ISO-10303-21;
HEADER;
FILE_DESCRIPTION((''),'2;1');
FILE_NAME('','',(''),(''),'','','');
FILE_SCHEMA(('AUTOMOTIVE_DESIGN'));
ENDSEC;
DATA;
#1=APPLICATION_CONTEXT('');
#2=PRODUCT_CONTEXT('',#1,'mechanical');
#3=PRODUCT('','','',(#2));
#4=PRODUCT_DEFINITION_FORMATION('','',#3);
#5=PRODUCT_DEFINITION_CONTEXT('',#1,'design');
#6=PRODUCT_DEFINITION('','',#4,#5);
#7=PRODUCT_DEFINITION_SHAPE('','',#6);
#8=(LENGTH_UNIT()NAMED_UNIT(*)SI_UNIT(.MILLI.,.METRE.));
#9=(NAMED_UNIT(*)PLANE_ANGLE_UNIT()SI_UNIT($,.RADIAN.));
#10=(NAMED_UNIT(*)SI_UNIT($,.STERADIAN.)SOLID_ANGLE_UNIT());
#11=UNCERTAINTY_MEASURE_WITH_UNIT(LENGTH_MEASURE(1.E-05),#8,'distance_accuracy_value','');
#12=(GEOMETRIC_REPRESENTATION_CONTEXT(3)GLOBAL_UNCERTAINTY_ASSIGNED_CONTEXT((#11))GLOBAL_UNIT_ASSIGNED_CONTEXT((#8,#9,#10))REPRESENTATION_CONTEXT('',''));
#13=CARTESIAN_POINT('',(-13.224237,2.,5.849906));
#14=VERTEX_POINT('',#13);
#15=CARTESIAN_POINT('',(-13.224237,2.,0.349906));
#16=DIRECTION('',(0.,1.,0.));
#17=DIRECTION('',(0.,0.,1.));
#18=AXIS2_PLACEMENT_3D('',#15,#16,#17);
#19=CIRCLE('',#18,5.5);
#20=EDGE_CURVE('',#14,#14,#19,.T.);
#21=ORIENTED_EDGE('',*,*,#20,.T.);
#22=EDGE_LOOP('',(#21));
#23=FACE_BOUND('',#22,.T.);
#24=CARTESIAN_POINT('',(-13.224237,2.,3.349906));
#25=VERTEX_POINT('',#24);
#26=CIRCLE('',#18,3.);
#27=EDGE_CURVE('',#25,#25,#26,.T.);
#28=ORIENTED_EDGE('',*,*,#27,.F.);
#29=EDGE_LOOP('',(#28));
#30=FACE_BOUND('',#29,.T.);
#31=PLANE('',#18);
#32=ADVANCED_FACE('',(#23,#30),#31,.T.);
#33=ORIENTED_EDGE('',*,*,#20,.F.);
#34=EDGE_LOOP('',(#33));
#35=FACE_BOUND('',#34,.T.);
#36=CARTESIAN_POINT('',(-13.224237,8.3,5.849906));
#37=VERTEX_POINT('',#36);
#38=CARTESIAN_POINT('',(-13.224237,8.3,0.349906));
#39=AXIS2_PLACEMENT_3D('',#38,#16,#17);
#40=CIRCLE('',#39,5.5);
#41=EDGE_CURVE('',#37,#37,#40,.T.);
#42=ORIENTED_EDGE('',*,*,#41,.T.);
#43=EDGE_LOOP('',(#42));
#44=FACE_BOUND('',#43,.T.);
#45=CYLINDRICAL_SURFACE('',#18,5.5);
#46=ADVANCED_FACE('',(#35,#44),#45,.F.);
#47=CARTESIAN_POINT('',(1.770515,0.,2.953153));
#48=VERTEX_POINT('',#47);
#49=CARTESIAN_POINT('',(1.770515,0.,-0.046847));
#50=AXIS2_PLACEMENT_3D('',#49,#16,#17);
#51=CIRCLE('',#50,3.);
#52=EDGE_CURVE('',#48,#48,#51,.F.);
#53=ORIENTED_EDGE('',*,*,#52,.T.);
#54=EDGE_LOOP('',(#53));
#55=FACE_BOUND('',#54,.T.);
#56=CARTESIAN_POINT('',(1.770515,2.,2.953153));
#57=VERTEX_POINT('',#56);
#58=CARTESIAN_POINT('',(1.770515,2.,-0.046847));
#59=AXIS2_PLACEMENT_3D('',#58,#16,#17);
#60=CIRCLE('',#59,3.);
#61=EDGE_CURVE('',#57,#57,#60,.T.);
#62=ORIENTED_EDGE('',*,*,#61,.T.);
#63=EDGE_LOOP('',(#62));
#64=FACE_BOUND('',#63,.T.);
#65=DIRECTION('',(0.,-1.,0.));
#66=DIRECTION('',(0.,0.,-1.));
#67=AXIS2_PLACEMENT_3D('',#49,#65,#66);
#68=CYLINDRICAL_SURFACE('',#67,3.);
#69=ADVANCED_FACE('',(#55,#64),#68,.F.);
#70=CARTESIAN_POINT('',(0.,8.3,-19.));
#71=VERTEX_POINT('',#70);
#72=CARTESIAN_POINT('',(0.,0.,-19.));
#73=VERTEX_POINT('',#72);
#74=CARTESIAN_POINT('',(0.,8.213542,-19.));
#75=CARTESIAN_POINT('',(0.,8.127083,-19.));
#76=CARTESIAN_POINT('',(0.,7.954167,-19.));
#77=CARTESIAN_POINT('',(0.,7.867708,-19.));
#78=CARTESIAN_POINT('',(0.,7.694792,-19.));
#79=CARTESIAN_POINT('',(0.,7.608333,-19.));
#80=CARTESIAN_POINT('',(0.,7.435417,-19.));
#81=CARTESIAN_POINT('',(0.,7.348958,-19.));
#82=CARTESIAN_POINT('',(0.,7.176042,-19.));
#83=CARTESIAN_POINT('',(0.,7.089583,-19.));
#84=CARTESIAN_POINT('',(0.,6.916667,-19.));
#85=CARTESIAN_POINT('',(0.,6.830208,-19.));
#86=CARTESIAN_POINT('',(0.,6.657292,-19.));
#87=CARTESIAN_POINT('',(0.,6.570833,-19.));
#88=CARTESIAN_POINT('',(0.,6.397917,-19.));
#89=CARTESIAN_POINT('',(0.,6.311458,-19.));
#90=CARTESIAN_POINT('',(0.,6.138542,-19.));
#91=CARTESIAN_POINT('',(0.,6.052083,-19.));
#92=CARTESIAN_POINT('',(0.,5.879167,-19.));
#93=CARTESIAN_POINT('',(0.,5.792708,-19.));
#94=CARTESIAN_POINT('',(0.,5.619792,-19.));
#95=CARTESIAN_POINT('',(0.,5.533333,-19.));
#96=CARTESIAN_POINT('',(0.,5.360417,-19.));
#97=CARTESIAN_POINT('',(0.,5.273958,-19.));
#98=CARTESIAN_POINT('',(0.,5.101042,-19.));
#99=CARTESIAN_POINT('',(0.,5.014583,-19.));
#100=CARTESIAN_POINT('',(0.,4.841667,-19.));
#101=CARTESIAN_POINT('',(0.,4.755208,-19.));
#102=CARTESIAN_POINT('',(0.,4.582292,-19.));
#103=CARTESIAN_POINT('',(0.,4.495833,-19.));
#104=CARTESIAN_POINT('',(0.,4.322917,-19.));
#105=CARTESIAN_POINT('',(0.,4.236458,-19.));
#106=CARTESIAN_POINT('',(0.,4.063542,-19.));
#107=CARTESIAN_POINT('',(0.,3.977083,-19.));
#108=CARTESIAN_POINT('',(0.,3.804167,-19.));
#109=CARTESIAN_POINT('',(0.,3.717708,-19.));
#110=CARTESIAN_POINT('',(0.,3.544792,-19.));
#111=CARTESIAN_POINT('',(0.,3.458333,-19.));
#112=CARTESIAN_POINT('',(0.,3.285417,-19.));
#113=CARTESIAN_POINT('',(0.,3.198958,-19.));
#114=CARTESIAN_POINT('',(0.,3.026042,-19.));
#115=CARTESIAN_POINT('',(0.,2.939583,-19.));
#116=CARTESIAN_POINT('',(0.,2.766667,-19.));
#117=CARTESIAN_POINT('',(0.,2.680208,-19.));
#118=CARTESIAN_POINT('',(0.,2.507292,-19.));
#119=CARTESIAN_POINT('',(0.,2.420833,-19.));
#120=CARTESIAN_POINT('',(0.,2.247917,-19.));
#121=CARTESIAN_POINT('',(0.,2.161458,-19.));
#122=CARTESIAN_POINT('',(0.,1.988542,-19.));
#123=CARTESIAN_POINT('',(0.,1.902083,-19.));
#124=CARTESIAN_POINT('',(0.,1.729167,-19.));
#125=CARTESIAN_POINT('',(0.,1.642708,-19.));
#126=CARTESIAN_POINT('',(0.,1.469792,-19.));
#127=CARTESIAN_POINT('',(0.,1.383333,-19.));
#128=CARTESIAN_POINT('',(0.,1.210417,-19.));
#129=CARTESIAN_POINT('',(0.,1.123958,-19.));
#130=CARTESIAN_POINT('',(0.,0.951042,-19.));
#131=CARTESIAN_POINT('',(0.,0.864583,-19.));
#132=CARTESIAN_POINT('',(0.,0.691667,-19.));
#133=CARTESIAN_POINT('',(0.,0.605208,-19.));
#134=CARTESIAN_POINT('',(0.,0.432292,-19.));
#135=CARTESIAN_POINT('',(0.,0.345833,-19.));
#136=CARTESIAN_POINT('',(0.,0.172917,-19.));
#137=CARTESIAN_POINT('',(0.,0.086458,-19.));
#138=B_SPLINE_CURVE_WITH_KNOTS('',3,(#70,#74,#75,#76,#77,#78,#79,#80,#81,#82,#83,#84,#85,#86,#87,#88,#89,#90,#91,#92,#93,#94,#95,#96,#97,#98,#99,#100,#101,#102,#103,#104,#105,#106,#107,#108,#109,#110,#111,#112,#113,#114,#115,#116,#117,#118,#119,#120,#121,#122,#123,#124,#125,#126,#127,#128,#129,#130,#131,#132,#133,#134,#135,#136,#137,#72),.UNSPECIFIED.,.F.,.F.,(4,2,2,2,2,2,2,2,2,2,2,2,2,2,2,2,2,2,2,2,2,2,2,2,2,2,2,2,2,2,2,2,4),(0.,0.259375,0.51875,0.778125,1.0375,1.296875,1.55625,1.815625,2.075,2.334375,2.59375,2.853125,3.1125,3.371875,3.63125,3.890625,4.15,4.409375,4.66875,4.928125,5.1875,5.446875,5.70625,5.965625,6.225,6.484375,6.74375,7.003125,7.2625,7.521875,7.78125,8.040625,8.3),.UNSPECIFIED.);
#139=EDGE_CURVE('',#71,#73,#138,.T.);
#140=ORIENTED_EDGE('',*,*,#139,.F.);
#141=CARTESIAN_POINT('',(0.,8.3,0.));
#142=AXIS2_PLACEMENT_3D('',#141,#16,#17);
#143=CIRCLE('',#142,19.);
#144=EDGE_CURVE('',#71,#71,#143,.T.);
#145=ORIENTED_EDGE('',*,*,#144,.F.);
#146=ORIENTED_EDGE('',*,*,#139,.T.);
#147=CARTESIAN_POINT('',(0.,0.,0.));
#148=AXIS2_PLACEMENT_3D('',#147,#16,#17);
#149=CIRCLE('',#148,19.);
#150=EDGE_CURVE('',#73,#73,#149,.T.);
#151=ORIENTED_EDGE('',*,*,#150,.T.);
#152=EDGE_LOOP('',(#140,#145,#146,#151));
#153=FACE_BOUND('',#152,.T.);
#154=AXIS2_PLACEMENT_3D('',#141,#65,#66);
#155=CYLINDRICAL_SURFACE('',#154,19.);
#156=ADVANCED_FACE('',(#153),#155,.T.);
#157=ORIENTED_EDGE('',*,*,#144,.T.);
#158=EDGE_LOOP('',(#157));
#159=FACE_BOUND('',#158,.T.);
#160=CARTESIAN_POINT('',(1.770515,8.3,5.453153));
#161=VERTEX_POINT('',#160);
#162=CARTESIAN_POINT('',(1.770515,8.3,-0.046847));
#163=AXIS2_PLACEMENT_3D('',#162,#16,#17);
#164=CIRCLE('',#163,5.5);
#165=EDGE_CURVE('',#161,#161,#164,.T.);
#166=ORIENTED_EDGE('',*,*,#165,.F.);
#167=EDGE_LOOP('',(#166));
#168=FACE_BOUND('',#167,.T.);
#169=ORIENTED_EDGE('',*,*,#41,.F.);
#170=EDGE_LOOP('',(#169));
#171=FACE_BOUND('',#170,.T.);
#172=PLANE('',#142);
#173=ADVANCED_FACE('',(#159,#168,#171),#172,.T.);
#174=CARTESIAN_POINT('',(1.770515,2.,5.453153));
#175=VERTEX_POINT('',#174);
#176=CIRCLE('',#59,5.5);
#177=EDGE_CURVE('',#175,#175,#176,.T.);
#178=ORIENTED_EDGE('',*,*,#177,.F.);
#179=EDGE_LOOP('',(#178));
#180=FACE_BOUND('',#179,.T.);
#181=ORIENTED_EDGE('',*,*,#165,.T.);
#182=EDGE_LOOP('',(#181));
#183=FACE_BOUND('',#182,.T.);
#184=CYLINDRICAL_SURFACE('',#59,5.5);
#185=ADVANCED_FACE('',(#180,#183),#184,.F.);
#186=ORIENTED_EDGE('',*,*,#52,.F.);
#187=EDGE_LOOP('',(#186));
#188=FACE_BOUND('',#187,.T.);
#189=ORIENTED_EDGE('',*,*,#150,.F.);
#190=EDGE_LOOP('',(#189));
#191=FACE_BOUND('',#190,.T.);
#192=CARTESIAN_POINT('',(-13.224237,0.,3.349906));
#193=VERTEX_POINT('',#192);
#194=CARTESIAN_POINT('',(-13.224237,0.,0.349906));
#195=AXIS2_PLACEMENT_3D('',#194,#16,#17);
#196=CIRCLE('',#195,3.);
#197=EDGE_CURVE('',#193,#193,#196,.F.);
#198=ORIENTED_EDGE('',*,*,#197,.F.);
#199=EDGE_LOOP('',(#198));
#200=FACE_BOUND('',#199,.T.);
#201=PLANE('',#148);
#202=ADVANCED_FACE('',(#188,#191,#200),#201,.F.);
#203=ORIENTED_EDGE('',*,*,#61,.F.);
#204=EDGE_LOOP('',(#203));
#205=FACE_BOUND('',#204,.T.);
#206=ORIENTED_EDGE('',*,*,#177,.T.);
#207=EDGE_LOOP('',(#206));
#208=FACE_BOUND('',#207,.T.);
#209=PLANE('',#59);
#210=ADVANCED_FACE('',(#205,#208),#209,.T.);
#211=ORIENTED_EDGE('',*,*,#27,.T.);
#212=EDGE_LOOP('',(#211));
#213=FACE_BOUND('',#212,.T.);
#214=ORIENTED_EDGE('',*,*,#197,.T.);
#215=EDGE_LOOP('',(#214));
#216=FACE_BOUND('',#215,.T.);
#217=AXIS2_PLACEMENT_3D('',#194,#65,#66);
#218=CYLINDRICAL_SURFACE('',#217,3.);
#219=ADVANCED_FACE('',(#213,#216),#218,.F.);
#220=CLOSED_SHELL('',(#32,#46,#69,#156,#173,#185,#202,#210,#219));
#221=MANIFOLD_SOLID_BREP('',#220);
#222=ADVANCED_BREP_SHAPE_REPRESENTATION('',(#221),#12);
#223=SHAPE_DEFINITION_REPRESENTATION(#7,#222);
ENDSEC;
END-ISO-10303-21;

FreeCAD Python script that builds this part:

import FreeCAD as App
import Part
import Sketcher

V = App.Vector
Q = App.Units.Quantity

doc = App.newDocument("Part")
params = doc.addObject("Spreadsheet::Sheet", "Params")
for row, (alias, value) in enumerate([
    ("sketch1_diameter", "38 mm"),
    ("pad1_length", "8.3 mm"),
    ("sketch2_diameter", "6 mm"),
    ("sketch3_diameter", "11 mm"),
    ("pocket2_length", "6.3 mm"),
], start=1):
    params.set(f"A{row}", alias)
    params.set(f"B{row}", "=" + value)
    params.setAlias(f"B{row}", alias)

body = doc.addObject("PartDesign::Body", "Body")

sketch1 = doc.addObject("Sketcher::SketchObject", "Sketch")
body.addObject(sketch1)
sketch1.AttachmentSupport = (doc.XZ_Plane, [""])
sketch1.MapMode = "FlatFace"
sketch1.addGeometry(Part.Circle(V(0, 0, 0), V(0, 0, 1), 19), False)
sketch1.addConstraint([
    Sketcher.Constraint("Coincident", 0, 3, -1, 1),
    Sketcher.Constraint("Diameter", 0, Q("38 mm")),
])
sketch1.setExpression("Constraints[1]", "Params.sketch1_diameter")
pad1 = doc.addObject("PartDesign::Pad", "Pad")
body.addObject(pad1)
pad1.Profile = sketch1
pad1.setExpression("Length", "Params.pad1_length")
pad1.Reversed = True

sketch2 = doc.addObject("Sketcher::SketchObject", "Sketch001")
body.addObject(sketch2)
sketch2.AttachmentSupport = (doc.XZ_Plane, [""])
sketch2.MapMode = "FlatFace"
sketch2.AttachmentOffset = App.Placement(V(0, 0, 17.369665), App.Rotation())
sketch2.addGeometry([
    Part.Circle(V(-13.224237, 0.349906, 0), V(0, 0, 1), 3),
    Part.Circle(V(1.770515, -0.046847, 0), V(0, 0, 1), 3),
], False)
sketch2.addConstraint([
    Sketcher.Constraint("Equal", 0, 1),
    Sketcher.Constraint("Diameter", 0, Q("6 mm")),
    Sketcher.Constraint("DistanceX", 0, 3, 1, 3, Q("14.994752 mm")),
    Sketcher.Constraint("DistanceX", 0, 3, -1, 1, Q("13.224237 mm")),
    Sketcher.Constraint("DistanceY", -1, 1, 0, 3, Q("0.349906 mm")),
    Sketcher.Constraint("DistanceY", 1, 3, -1, 1, Q("0.046847 mm")),
])
sketch2.setExpression("Constraints[1]", "Params.sketch2_diameter")
pocket1 = doc.addObject("PartDesign::Pocket", "Pocket")
body.addObject(pocket1)
pocket1.Profile = sketch2
pocket1.Type = "ThroughAll"
pocket1.Midplane = True

sketch3 = doc.addObject("Sketcher::SketchObject", "Sketch002")
body.addObject(sketch3)
sketch3.AttachmentSupport = (doc.XZ_Plane, [""])
sketch3.MapMode = "FlatFace"
sketch3.AttachmentOffset = App.Placement(V(0, 0, -8.3), App.Rotation())
sketch3.addGeometry([
    Part.Circle(V(-13.224237, 0.349906, 0), V(0, 0, 1), 5.5),
    Part.Circle(V(1.770515, -0.046847, 0), V(0, 0, 1), 5.5),
], False)
sketch3.addConstraint([
    Sketcher.Constraint("Equal", 0, 1),
    Sketcher.Constraint("Diameter", 0, Q("11 mm")),
    Sketcher.Constraint("DistanceX", 0, 3, 1, 3, Q("14.994752 mm")),
    Sketcher.Constraint("DistanceX", 0, 3, -1, 1, Q("13.224237 mm")),
    Sketcher.Constraint("DistanceY", -1, 1, 0, 3, Q("0.349906 mm")),
    Sketcher.Constraint("DistanceY", 1, 3, -1, 1, Q("0.046847 mm")),
])
sketch3.setExpression("Constraints[1]", "Params.sketch3_diameter")
pocket2 = doc.addObject("PartDesign::Pocket", "Pocket001")
body.addObject(pocket2)
pocket2.Profile = sketch3
pocket2.setExpression("Length", "Params.pocket2_length")
pocket2.Reversed = True

doc.recompute()
